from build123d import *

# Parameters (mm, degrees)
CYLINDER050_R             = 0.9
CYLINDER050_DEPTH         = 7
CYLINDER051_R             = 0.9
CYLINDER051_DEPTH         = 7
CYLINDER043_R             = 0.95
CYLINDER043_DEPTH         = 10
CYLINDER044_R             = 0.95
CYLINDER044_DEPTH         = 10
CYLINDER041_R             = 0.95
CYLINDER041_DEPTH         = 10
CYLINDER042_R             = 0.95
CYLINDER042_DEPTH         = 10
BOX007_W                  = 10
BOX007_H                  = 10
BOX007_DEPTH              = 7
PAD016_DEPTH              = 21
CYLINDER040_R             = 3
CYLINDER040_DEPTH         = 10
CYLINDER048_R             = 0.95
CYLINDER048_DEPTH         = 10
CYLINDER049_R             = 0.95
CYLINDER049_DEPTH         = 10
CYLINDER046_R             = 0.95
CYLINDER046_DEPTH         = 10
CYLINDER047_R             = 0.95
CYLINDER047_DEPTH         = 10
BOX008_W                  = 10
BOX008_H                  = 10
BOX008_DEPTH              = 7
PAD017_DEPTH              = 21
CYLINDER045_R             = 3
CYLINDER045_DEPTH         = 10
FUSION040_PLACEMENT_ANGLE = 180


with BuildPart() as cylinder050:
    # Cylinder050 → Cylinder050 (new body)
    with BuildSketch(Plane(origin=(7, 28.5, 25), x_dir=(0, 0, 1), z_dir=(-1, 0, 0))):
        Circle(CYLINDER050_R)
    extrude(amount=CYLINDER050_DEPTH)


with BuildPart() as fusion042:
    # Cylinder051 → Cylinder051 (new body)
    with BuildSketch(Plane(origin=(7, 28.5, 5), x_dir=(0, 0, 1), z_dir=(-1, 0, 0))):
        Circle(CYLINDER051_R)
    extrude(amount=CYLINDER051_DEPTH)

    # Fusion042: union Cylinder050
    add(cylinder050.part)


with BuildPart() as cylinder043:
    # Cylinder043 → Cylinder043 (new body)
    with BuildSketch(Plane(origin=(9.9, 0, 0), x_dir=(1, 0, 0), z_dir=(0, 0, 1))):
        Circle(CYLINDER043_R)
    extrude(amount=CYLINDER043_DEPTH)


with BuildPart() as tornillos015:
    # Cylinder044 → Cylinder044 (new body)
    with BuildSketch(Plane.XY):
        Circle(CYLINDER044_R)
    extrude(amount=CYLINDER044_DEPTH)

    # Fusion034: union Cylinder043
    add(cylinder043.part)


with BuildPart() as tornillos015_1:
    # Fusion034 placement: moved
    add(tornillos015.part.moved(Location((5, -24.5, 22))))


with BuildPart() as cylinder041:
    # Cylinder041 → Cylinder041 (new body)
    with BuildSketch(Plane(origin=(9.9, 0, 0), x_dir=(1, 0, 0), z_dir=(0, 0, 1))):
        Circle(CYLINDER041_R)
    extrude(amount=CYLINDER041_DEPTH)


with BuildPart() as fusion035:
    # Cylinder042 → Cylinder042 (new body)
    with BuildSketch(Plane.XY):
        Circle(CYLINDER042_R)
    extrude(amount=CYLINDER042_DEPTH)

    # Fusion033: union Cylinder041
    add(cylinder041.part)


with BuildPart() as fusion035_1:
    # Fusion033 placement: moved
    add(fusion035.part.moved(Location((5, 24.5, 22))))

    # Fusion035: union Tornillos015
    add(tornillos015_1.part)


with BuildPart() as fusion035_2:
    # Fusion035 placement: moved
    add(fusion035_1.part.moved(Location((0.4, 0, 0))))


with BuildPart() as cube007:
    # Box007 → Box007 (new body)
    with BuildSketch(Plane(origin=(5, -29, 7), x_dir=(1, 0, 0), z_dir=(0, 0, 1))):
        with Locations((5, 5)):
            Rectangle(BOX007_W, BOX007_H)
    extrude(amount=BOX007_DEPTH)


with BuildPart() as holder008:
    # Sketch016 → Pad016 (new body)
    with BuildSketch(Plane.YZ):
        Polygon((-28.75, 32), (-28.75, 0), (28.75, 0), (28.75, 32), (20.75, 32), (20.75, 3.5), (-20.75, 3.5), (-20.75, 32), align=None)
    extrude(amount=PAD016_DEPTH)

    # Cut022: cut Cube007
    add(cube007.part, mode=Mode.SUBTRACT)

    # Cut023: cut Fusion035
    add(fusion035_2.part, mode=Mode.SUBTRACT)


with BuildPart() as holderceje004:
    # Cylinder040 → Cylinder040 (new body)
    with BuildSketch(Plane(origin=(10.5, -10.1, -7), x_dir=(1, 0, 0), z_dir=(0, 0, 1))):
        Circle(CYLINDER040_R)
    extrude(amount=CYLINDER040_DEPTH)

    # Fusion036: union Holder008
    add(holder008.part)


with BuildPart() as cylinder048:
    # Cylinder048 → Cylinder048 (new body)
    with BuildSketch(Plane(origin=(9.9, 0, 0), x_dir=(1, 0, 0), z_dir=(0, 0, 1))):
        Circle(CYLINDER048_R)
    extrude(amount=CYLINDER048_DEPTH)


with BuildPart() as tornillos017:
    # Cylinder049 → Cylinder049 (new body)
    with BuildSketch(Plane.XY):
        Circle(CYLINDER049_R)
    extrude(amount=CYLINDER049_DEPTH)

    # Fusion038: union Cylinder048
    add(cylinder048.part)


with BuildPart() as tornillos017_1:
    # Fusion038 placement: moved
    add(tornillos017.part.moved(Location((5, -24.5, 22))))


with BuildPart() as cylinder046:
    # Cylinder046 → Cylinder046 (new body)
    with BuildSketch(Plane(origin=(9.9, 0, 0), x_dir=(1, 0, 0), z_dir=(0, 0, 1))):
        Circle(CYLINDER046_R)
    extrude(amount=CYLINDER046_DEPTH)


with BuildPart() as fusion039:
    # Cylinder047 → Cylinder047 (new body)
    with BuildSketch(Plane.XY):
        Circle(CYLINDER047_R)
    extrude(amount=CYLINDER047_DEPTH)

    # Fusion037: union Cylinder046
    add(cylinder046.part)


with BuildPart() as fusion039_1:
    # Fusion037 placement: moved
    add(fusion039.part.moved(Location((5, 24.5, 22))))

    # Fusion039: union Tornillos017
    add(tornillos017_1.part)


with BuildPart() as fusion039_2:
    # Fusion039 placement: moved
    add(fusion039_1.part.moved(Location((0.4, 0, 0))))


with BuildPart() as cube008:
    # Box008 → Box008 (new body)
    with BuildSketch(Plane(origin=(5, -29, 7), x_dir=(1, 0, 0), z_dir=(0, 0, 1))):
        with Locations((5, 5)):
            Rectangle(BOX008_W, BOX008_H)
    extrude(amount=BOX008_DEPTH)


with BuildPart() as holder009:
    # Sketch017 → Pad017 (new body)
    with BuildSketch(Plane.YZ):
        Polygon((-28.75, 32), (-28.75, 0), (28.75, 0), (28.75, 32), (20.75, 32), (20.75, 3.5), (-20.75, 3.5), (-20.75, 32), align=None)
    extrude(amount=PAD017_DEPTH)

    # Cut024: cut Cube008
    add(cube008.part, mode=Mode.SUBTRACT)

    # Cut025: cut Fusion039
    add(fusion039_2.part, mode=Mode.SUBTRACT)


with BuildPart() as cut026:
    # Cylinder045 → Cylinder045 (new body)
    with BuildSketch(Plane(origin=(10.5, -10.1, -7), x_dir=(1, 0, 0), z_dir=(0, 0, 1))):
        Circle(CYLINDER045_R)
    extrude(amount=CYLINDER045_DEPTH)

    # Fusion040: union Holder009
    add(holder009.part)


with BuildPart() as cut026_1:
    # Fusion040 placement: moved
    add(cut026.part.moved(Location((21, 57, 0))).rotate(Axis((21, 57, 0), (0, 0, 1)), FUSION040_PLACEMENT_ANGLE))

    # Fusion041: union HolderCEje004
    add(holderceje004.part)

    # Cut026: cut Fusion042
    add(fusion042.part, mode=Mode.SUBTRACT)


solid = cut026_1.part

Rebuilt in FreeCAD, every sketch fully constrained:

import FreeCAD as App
import Part
import Sketcher
from FreeCAD import Vector

doc = App.newDocument("Part")
body = doc.addObject("PartDesign::Body", "Body")

sketch1 = body.newObject("Sketcher::SketchObject", "Sketch")
sketch1.AttachmentSupport = (doc.getObject("YZ_Plane"), [""])
sketch1.MapMode = "FlatFace"
sketch1.AttachmentOffset = App.Placement(Vector(0, 0, 7), App.Rotation())
sketch1.addGeometry(Part.Circle(Vector(28.5, 25, 0), Vector(0, 0, 1), 0.9), False)
sketch1.addConstraint([
    Sketcher.Constraint("Diameter", 0, 1.8),
    Sketcher.Constraint("DistanceY", -1, 1, 0, 3, 25.0),
    Sketcher.Constraint("DistanceX", -1, 1, 0, 3, 28.5),
])
pad1 = body.newObject("PartDesign::Pad", "Pad")
pad1.Profile = sketch1
pad1.Length = 7
pad1.Reversed = True
body2 = doc.addObject("PartDesign::Body", "Body001")
body2.AllowCompound = True

sketch2 = body2.newObject("Sketcher::SketchObject", "Sketch001")
sketch2.AttachmentSupport = (doc.getObject("YZ_Plane001"), [""])
sketch2.MapMode = "FlatFace"
sketch2.AttachmentOffset = App.Placement(Vector(0, 0, 7), App.Rotation())
sketch2.addGeometry(Part.Circle(Vector(28.5, 5, 0), Vector(0, 0, 1), 0.9), False)
sketch2.addConstraint([
    Sketcher.Constraint("Diameter", 0, 1.8),
    Sketcher.Constraint("DistanceY", -1, 1, 0, 3, 5.0),
    Sketcher.Constraint("DistanceX", -1, 1, 0, 3, 28.5),
])
pad2 = body2.newObject("PartDesign::Pad", "Pad001")
pad2.Profile = sketch2
pad2.Length = 7
pad2.Reversed = True
doc.recompute()

boolean = body2.newObject("PartDesign::Boolean", "Boolean")
boolean.Type = "Fuse"
boolean.addObjects([body])
body3 = doc.addObject("PartDesign::Body", "Body002")

sketch3 = body3.newObject("Sketcher::SketchObject", "Sketch002")
sketch3.AttachmentSupport = (doc.getObject("XY_Plane002"), [""])
sketch3.MapMode = "FlatFace"
sketch3.addGeometry(Part.Circle(Vector(9.9, 0, 0), Vector(0, 0, 1), 0.95), False)
sketch3.addConstraint([
    Sketcher.Constraint("PointOnObject", 0, 3, -1),
    Sketcher.Constraint("Diameter", 0, 1.9),
    Sketcher.Constraint("DistanceX", -1, 1, 0, 3, 9.9),
])
pad3 = body3.newObject("PartDesign::Pad", "Pad002")
pad3.Profile = sketch3
pad3.Length = 10
body4 = doc.addObject("PartDesign::Body", "Body003")
body4.AllowCompound = True

sketch4 = body4.newObject("Sketcher::SketchObject", "Sketch003")
sketch4.AttachmentSupport = (doc.getObject("XY_Plane003"), [""])
sketch4.MapMode = "FlatFace"
sketch4.addGeometry(Part.Circle(Vector(0, 0, 0), Vector(0, 0, 1), 0.95), False)
sketch4.addConstraint([
    Sketcher.Constraint("Coincident", 0, 3, -1, 1),
    Sketcher.Constraint("Diameter", 0, 1.9),
])
pad4 = body4.newObject("PartDesign::Pad", "Pad003")
pad4.Profile = sketch4
pad4.Length = 10
doc.recompute()

boolean2 = body4.newObject("PartDesign::Boolean", "Boolean001")
boolean2.Type = "Fuse"
boolean2.addObjects([body3])
body5 = doc.addObject("PartDesign::Body", "Body004")
body5.AllowCompound = True
doc.recompute()

body4.Placement = App.Placement(Vector(5, -24.5, 22), App.Rotation(Vector(0, 0, 1), 0))
boolean3 = body5.newObject("PartDesign::Boolean", "Boolean002")
boolean3.Type = "Fuse"
boolean3.addObjects([body4])
body6 = doc.addObject("PartDesign::Body", "Body005")

sketch5 = body6.newObject("Sketcher::SketchObject", "Sketch004")
sketch5.AttachmentSupport = (doc.getObject("XY_Plane005"), [""])
sketch5.MapMode = "FlatFace"
sketch5.addGeometry(Part.Circle(Vector(9.9, 0, 0), Vector(0, 0, 1), 0.95), False)
sketch5.addConstraint([
    Sketcher.Constraint("PointOnObject", 0, 3, -1),
    Sketcher.Constraint("Diameter", 0, 1.9),
    Sketcher.Constraint("DistanceX", -1, 1, 0, 3, 9.9),
])
pad5 = body6.newObject("PartDesign::Pad", "Pad004")
pad5.Profile = sketch5
pad5.Length = 10
body7 = doc.addObject("PartDesign::Body", "Body006")
body7.AllowCompound = True

sketch6 = body7.newObject("Sketcher::SketchObject", "Sketch005")
sketch6.AttachmentSupport = (doc.getObject("XY_Plane006"), [""])
sketch6.MapMode = "FlatFace"
sketch6.addGeometry(Part.Circle(Vector(0, 0, 0), Vector(0, 0, 1), 0.95), False)
sketch6.addConstraint([
    Sketcher.Constraint("Coincident", 0, 3, -1, 1),
    Sketcher.Constraint("Diameter", 0, 1.9),
])
pad6 = body7.newObject("PartDesign::Pad", "Pad005")
pad6.Profile = sketch6
pad6.Length = 10
doc.recompute()

boolean4 = body7.newObject("PartDesign::Boolean", "Boolean003")
boolean4.Type = "Fuse"
boolean4.addObjects([body6])
body8 = doc.addObject("PartDesign::Body", "Body007")
body8.AllowCompound = True
doc.recompute()

body7.Placement = App.Placement(Vector(5, 24.5, 22), App.Rotation(Vector(0, 0, 1), 0))
boolean5 = body8.newObject("PartDesign::Boolean", "Boolean004")
boolean5.Type = "Fuse"
boolean5.addObjects([body7])
doc.recompute()

boolean6 = body8.newObject("PartDesign::Boolean", "Boolean005")
boolean6.Type = "Fuse"
boolean6.addObjects([body5])
body9 = doc.addObject("PartDesign::Body", "Body008")
body9.AllowCompound = True
doc.recompute()

body8.Placement = App.Placement(Vector(0.4, 0, 0), App.Rotation(Vector(0, 0, 1), 0))
boolean7 = body9.newObject("PartDesign::Boolean", "Boolean006")
boolean7.Type = "Fuse"
boolean7.addObjects([body8])
body10 = doc.addObject("PartDesign::Body", "Body009")

sketch7 = body10.newObject("Sketcher::SketchObject", "Sketch006")
sketch7.AttachmentSupport = (doc.getObject("XY_Plane009"), [""])
sketch7.MapMode = "FlatFace"
sketch7.AttachmentOffset = App.Placement(Vector(0, 0, 7), App.Rotation())
sketch7.addGeometry([
    Part.LineSegment(Vector(5, -19, 0), Vector(5, -29, 0)),
    Part.LineSegment(Vector(5, -29, 0), Vector(15, -29, 0)),
    Part.LineSegment(Vector(15, -29, 0), Vector(15, -19, 0)),
    Part.LineSegment(Vector(15, -19, 0), Vector(5, -19, 0)),
], False)
sketch7.addConstraint([
    Sketcher.Constraint("Coincident", 0, 2, 1, 1),
    Sketcher.Constraint("Coincident", 1, 2, 2, 1),
    Sketcher.Constraint("Coincident", 2, 2, 3, 1),
    Sketcher.Constraint("Coincident", 3, 2, 0, 1),
    Sketcher.Constraint("Vertical", 0),
    Sketcher.Constraint("Horizontal", 1),
    Sketcher.Constraint("Vertical", 2),
    Sketcher.Constraint("Horizontal", 3),
    Sketcher.Constraint("Equal", 3, 0),
    Sketcher.Constraint("DistanceX", 1, 1, 1, 2, 10.0),
    Sketcher.Constraint("DistanceX", -1, 1, 0, 2, 5.0),
    Sketcher.Constraint("DistanceY", 0, 2, -1, 1, 29.0),
])
pad7 = body10.newObject("PartDesign::Pad", "Pad006")
pad7.Profile = sketch7
pad7.Length = 7
body11 = doc.addObject("PartDesign::Body", "Body010")

sketch8 = body11.newObject("Sketcher::SketchObject", "Sketch007")
sketch8.AttachmentSupport = (doc.getObject("YZ_Plane010"), [""])
sketch8.MapMode = "FlatFace"
sketch8.addGeometry([
    Part.LineSegment(Vector(-28.75, 32, 0), Vector(-28.75, 0, 0)),
    Part.LineSegment(Vector(-28.75, 0, 0), Vector(28.75, 0, 0)),
    Part.LineSegment(Vector(28.75, 0, 0), Vector(28.75, 32, 0)),
    Part.LineSegment(Vector(28.75, 32, 0), Vector(20.75, 32, 0)),
    Part.LineSegment(Vector(20.75, 32, 0), Vector(20.75, 3.5, 0)),
    Part.LineSegment(Vector(20.75, 3.5, 0), Vector(-20.75, 3.5, 0)),
    Part.LineSegment(Vector(-20.75, 3.5, 0), Vector(-20.75, 32, 0)),
    Part.LineSegment(Vector(-20.75, 32, 0), Vector(-28.75, 32, 0)),
], False)
sketch8.addConstraint([
    Sketcher.Constraint("Coincident", 0, 2, 1, 1),
    Sketcher.Constraint("Coincident", 1, 2, 2, 1),
    Sketcher.Constraint("Coincident", 2, 2, 3, 1),
    Sketcher.Constraint("Coincident", 3, 2, 4, 1),
    Sketcher.Constraint("Coincident", 4, 2, 5, 1),
    Sketcher.Constraint("Coincident", 5, 2, 6, 1),
    Sketcher.Constraint("Coincident", 6, 2, 7, 1),
    Sketcher.Constraint("Coincident", 7, 2, 0, 1),
    Sketcher.Constraint("Vertical", 0),
    Sketcher.Constraint("Horizontal", 1),
    Sketcher.Constraint("Vertical", 2),
    Sketcher.Constraint("Horizontal", 3),
    Sketcher.Constraint("Vertical", 4),
    Sketcher.Constraint("Horizontal", 5),
    Sketcher.Constraint("Vertical", 6),
    Sketcher.Constraint("Horizontal", 7),
    Sketcher.Constraint("Symmetric", 0, 2, 1, 2, -1, 1),
    Sketcher.Constraint("Symmetric", 3, 2, 6, 2, -2),
    Sketcher.Constraint("DistanceX", 3, 2, 3, 1, 8.0),
    Sketcher.Constraint("DistanceY", 0, 2, 0, 1, 32.0),
    Sketcher.Constraint("DistanceX", 1, 1, 1, 2, 57.5),
    Sketcher.Constraint("DistanceY", 4, 2, 4, 1, 28.5),
])
pad8 = body11.newObject("PartDesign::Pad", "Pad007")
pad8.Profile = sketch8
pad8.Length = 21
doc.recompute()

boolean8 = body11.newObject("PartDesign::Boolean", "Boolean007")
boolean8.Type = "Cut"
boolean8.addObjects([body10])
doc.recompute()

boolean9 = body11.newObject("PartDesign::Boolean", "Boolean008")
boolean9.Type = "Cut"
boolean9.addObjects([body9])
body12 = doc.addObject("PartDesign::Body", "Body011")

sketch9 = body12.newObject("Sketcher::SketchObject", "Sketch008")
sketch9.AttachmentSupport = (doc.getObject("XY_Plane011"), [""])
sketch9.MapMode = "FlatFace"
sketch9.AttachmentOffset = App.Placement(Vector(0, 0, -7), App.Rotation())
sketch9.addGeometry(Part.Circle(Vector(10.5, -10.1, 0), Vector(0, 0, 1), 3), False)
sketch9.addConstraint([
    Sketcher.Constraint("Diameter", 0, 6.0),
    Sketcher.Constraint("DistanceX", -1, 1, 0, 3, 10.5),
    Sketcher.Constraint("DistanceY", 0, 3, -1, 1, 10.1),
])
pad9 = body12.newObject("PartDesign::Pad", "Pad008")
pad9.Profile = sketch9
pad9.Length = 10
doc.recompute()

boolean10 = body12.newObject("PartDesign::Boolean", "Boolean009")
boolean10.Type = "Fuse"
boolean10.addObjects([body11])
body13 = doc.addObject("PartDesign::Body", "Body012")

sketch10 = body13.newObject("Sketcher::SketchObject", "Sketch009")
sketch10.AttachmentSupport = (doc.getObject("XY_Plane012"), [""])
sketch10.MapMode = "FlatFace"
sketch10.addGeometry(Part.Circle(Vector(9.9, 0, 0), Vector(0, 0, 1), 0.95), False)
sketch10.addConstraint([
    Sketcher.Constraint("PointOnObject", 0, 3, -1),
    Sketcher.Constraint("Diameter", 0, 1.9),
    Sketcher.Constraint("DistanceX", -1, 1, 0, 3, 9.9),
])
pad10 = body13.newObject("PartDesign::Pad", "Pad009")
pad10.Profile = sketch10
pad10.Length = 10
body14 = doc.addObject("PartDesign::Body", "Body013")
body14.AllowCompound = True

sketch11 = body14.newObject("Sketcher::SketchObject", "Sketch010")
sketch11.AttachmentSupport = (doc.getObject("XY_Plane013"), [""])
sketch11.MapMode = "FlatFace"
sketch11.addGeometry(Part.Circle(Vector(0, 0, 0), Vector(0, 0, 1), 0.95), False)
sketch11.addConstraint([
    Sketcher.Constraint("Coincident", 0, 3, -1, 1),
    Sketcher.Constraint("Diameter", 0, 1.9),
])
pad11 = body14.newObject("PartDesign::Pad", "Pad010")
pad11.Profile = sketch11
pad11.Length = 10
doc.recompute()

boolean11 = body14.newObject("PartDesign::Boolean", "Boolean010")
boolean11.Type = "Fuse"
boolean11.addObjects([body13])
body15 = doc.addObject("PartDesign::Body", "Body014")
body15.AllowCompound = True
doc.recompute()

body14.Placement = App.Placement(Vector(5, -24.5, 22), App.Rotation(Vector(0, 0, 1), 0))
boolean12 = body15.newObject("PartDesign::Boolean", "Boolean011")
boolean12.Type = "Fuse"
boolean12.addObjects([body14])
body16 = doc.addObject("PartDesign::Body", "Body015")

sketch12 = body16.newObject("Sketcher::SketchObject", "Sketch011")
sketch12.AttachmentSupport = (doc.getObject("XY_Plane015"), [""])
sketch12.MapMode = "FlatFace"
sketch12.addGeometry(Part.Circle(Vector(9.9, 0, 0), Vector(0, 0, 1), 0.95), False)
sketch12.addConstraint([
    Sketcher.Constraint("PointOnObject", 0, 3, -1),
    Sketcher.Constraint("Diameter", 0, 1.9),
    Sketcher.Constraint("DistanceX", -1, 1, 0, 3, 9.9),
])
pad12 = body16.newObject("PartDesign::Pad", "Pad011")
pad12.Profile = sketch12
pad12.Length = 10
body17 = doc.addObject("PartDesign::Body", "Body016")
body17.AllowCompound = True

sketch13 = body17.newObject("Sketcher::SketchObject", "Sketch012")
sketch13.AttachmentSupport = (doc.getObject("XY_Plane016"), [""])
sketch13.MapMode = "FlatFace"
sketch13.addGeometry(Part.Circle(Vector(0, 0, 0), Vector(0, 0, 1), 0.95), False)
sketch13.addConstraint([
    Sketcher.Constraint("Coincident", 0, 3, -1, 1),
    Sketcher.Constraint("Diameter", 0, 1.9),
])
pad13 = body17.newObject("PartDesign::Pad", "Pad012")
pad13.Profile = sketch13
pad13.Length = 10
doc.recompute()

boolean13 = body17.newObject("PartDesign::Boolean", "Boolean012")
boolean13.Type = "Fuse"
boolean13.addObjects([body16])
body18 = doc.addObject("PartDesign::Body", "Body017")
body18.AllowCompound = True
doc.recompute()

body17.Placement = App.Placement(Vector(5, 24.5, 22), App.Rotation(Vector(0, 0, 1), 0))
boolean14 = body18.newObject("PartDesign::Boolean", "Boolean013")
boolean14.Type = "Fuse"
boolean14.addObjects([body17])
doc.recompute()

boolean15 = body18.newObject("PartDesign::Boolean", "Boolean014")
boolean15.Type = "Fuse"
boolean15.addObjects([body15])
body19 = doc.addObject("PartDesign::Body", "Body018")
body19.AllowCompound = True
doc.recompute()

body18.Placement = App.Placement(Vector(0.4, 0, 0), App.Rotation(Vector(0, 0, 1), 0))
boolean16 = body19.newObject("PartDesign::Boolean", "Boolean015")
boolean16.Type = "Fuse"
boolean16.addObjects([body18])
body20 = doc.addObject("PartDesign::Body", "Body019")

sketch14 = body20.newObject("Sketcher::SketchObject", "Sketch013")
sketch14.AttachmentSupport = (doc.getObject("XY_Plane019"), [""])
sketch14.MapMode = "FlatFace"
sketch14.AttachmentOffset = App.Placement(Vector(0, 0, 7), App.Rotation())
sketch14.addGeometry([
    Part.LineSegment(Vector(5, -19, 0), Vector(5, -29, 0)),
    Part.LineSegment(Vector(5, -29, 0), Vector(15, -29, 0)),
    Part.LineSegment(Vector(15, -29, 0), Vector(15, -19, 0)),
    Part.LineSegment(Vector(15, -19, 0), Vector(5, -19, 0)),
], False)
sketch14.addConstraint([
    Sketcher.Constraint("Coincident", 0, 2, 1, 1),
    Sketcher.Constraint("Coincident", 1, 2, 2, 1),
    Sketcher.Constraint("Coincident", 2, 2, 3, 1),
    Sketcher.Constraint("Coincident", 3, 2, 0, 1),
    Sketcher.Constraint("Vertical", 0),
    Sketcher.Constraint("Horizontal", 1),
    Sketcher.Constraint("Vertical", 2),
    Sketcher.Constraint("Horizontal", 3),
    Sketcher.Constraint("Equal", 3, 0),
    Sketcher.Constraint("DistanceX", 1, 1, 1, 2, 10.0),
    Sketcher.Constraint("DistanceX", -1, 1, 0, 2, 5.0),
    Sketcher.Constraint("DistanceY", 0, 2, -1, 1, 29.0),
])
pad14 = body20.newObject("PartDesign::Pad", "Pad013")
pad14.Profile = sketch14
pad14.Length = 7
body21 = doc.addObject("PartDesign::Body", "Body020")

sketch15 = body21.newObject("Sketcher::SketchObject", "Sketch014")
sketch15.AttachmentSupport = (doc.getObject("YZ_Plane020"), [""])
sketch15.MapMode = "FlatFace"
sketch15.addGeometry([
    Part.LineSegment(Vector(-28.75, 32, 0), Vector(-28.75, 0, 0)),
    Part.LineSegment(Vector(-28.75, 0, 0), Vector(28.75, 0, 0)),
    Part.LineSegment(Vector(28.75, 0, 0), Vector(28.75, 32, 0)),
    Part.LineSegment(Vector(28.75, 32, 0), Vector(20.75, 32, 0)),
    Part.LineSegment(Vector(20.75, 32, 0), Vector(20.75, 3.5, 0)),
    Part.LineSegment(Vector(20.75, 3.5, 0), Vector(-20.75, 3.5, 0)),
    Part.LineSegment(Vector(-20.75, 3.5, 0), Vector(-20.75, 32, 0)),
    Part.LineSegment(Vector(-20.75, 32, 0), Vector(-28.75, 32, 0)),
], False)
sketch15.addConstraint([
    Sketcher.Constraint("Coincident", 0, 2, 1, 1),
    Sketcher.Constraint("Coincident", 1, 2, 2, 1),
    Sketcher.Constraint("Coincident", 2, 2, 3, 1),
    Sketcher.Constraint("Coincident", 3, 2, 4, 1),
    Sketcher.Constraint("Coincident", 4, 2, 5, 1),
    Sketcher.Constraint("Coincident", 5, 2, 6, 1),
    Sketcher.Constraint("Coincident", 6, 2, 7, 1),
    Sketcher.Constraint("Coincident", 7, 2, 0, 1),
    Sketcher.Constraint("Vertical", 0),
    Sketcher.Constraint("Horizontal", 1),
    Sketcher.Constraint("Vertical", 2),
    Sketcher.Constraint("Horizontal", 3),
    Sketcher.Constraint("Vertical", 4),
    Sketcher.Constraint("Horizontal", 5),
    Sketcher.Constraint("Vertical", 6),
    Sketcher.Constraint("Horizontal", 7),
    Sketcher.Constraint("Symmetric", 0, 2, 1, 2, -1, 1),
    Sketcher.Constraint("Symmetric", 3, 2, 6, 2, -2),
    Sketcher.Constraint("DistanceX", 3, 2, 3, 1, 8.0),
    Sketcher.Constraint("DistanceY", 0, 2, 0, 1, 32.0),
    Sketcher.Constraint("DistanceX", 1, 1, 1, 2, 57.5),
    Sketcher.Constraint("DistanceY", 4, 2, 4, 1, 28.5),
])
pad15 = body21.newObject("PartDesign::Pad", "Pad014")
pad15.Profile = sketch15
pad15.Length = 21
doc.recompute()

boolean17 = body21.newObject("PartDesign::Boolean", "Boolean016")
boolean17.Type = "Cut"
boolean17.addObjects([body20])
doc.recompute()

boolean18 = body21.newObject("PartDesign::Boolean", "Boolean017")
boolean18.Type = "Cut"
boolean18.addObjects([body19])
body22 = doc.addObject("PartDesign::Body", "Body021")

sketch16 = body22.newObject("Sketcher::SketchObject", "Sketch015")
sketch16.AttachmentSupport = (doc.getObject("XY_Plane021"), [""])
sketch16.MapMode = "FlatFace"
sketch16.AttachmentOffset = App.Placement(Vector(0, 0, -7), App.Rotation())
sketch16.addGeometry(Part.Circle(Vector(10.5, -10.1, 0), Vector(0, 0, 1), 3), False)
sketch16.addConstraint([
    Sketcher.Constraint("Diameter", 0, 6.0),
    Sketcher.Constraint("DistanceX", -1, 1, 0, 3, 10.5),
    Sketcher.Constraint("DistanceY", 0, 3, -1, 1, 10.1),
])
pad16 = body22.newObject("PartDesign::Pad", "Pad015")
pad16.Profile = sketch16
pad16.Length = 10
doc.recompute()

boolean19 = body22.newObject("PartDesign::Boolean", "Boolean018")
boolean19.Type = "Fuse"
boolean19.addObjects([body21])
body23 = doc.addObject("PartDesign::Body", "Body022")
doc.recompute()

body22.Placement = App.Placement(Vector(21, 57, 0), App.Rotation(Vector(0, 0, 1), 180))
boolean20 = body23.newObject("PartDesign::Boolean", "Boolean019")
boolean20.Type = "Fuse"
boolean20.addObjects([body22])
doc.recompute()

boolean21 = body23.newObject("PartDesign::Boolean", "Boolean020")
boolean21.Type = "Fuse"
boolean21.addObjects([body12])
doc.recompute()

boolean22 = body23.newObject("PartDesign::Boolean", "Boolean021")
boolean22.Type = "Cut"
boolean22.addObjects([body2])

doc.recompute()
